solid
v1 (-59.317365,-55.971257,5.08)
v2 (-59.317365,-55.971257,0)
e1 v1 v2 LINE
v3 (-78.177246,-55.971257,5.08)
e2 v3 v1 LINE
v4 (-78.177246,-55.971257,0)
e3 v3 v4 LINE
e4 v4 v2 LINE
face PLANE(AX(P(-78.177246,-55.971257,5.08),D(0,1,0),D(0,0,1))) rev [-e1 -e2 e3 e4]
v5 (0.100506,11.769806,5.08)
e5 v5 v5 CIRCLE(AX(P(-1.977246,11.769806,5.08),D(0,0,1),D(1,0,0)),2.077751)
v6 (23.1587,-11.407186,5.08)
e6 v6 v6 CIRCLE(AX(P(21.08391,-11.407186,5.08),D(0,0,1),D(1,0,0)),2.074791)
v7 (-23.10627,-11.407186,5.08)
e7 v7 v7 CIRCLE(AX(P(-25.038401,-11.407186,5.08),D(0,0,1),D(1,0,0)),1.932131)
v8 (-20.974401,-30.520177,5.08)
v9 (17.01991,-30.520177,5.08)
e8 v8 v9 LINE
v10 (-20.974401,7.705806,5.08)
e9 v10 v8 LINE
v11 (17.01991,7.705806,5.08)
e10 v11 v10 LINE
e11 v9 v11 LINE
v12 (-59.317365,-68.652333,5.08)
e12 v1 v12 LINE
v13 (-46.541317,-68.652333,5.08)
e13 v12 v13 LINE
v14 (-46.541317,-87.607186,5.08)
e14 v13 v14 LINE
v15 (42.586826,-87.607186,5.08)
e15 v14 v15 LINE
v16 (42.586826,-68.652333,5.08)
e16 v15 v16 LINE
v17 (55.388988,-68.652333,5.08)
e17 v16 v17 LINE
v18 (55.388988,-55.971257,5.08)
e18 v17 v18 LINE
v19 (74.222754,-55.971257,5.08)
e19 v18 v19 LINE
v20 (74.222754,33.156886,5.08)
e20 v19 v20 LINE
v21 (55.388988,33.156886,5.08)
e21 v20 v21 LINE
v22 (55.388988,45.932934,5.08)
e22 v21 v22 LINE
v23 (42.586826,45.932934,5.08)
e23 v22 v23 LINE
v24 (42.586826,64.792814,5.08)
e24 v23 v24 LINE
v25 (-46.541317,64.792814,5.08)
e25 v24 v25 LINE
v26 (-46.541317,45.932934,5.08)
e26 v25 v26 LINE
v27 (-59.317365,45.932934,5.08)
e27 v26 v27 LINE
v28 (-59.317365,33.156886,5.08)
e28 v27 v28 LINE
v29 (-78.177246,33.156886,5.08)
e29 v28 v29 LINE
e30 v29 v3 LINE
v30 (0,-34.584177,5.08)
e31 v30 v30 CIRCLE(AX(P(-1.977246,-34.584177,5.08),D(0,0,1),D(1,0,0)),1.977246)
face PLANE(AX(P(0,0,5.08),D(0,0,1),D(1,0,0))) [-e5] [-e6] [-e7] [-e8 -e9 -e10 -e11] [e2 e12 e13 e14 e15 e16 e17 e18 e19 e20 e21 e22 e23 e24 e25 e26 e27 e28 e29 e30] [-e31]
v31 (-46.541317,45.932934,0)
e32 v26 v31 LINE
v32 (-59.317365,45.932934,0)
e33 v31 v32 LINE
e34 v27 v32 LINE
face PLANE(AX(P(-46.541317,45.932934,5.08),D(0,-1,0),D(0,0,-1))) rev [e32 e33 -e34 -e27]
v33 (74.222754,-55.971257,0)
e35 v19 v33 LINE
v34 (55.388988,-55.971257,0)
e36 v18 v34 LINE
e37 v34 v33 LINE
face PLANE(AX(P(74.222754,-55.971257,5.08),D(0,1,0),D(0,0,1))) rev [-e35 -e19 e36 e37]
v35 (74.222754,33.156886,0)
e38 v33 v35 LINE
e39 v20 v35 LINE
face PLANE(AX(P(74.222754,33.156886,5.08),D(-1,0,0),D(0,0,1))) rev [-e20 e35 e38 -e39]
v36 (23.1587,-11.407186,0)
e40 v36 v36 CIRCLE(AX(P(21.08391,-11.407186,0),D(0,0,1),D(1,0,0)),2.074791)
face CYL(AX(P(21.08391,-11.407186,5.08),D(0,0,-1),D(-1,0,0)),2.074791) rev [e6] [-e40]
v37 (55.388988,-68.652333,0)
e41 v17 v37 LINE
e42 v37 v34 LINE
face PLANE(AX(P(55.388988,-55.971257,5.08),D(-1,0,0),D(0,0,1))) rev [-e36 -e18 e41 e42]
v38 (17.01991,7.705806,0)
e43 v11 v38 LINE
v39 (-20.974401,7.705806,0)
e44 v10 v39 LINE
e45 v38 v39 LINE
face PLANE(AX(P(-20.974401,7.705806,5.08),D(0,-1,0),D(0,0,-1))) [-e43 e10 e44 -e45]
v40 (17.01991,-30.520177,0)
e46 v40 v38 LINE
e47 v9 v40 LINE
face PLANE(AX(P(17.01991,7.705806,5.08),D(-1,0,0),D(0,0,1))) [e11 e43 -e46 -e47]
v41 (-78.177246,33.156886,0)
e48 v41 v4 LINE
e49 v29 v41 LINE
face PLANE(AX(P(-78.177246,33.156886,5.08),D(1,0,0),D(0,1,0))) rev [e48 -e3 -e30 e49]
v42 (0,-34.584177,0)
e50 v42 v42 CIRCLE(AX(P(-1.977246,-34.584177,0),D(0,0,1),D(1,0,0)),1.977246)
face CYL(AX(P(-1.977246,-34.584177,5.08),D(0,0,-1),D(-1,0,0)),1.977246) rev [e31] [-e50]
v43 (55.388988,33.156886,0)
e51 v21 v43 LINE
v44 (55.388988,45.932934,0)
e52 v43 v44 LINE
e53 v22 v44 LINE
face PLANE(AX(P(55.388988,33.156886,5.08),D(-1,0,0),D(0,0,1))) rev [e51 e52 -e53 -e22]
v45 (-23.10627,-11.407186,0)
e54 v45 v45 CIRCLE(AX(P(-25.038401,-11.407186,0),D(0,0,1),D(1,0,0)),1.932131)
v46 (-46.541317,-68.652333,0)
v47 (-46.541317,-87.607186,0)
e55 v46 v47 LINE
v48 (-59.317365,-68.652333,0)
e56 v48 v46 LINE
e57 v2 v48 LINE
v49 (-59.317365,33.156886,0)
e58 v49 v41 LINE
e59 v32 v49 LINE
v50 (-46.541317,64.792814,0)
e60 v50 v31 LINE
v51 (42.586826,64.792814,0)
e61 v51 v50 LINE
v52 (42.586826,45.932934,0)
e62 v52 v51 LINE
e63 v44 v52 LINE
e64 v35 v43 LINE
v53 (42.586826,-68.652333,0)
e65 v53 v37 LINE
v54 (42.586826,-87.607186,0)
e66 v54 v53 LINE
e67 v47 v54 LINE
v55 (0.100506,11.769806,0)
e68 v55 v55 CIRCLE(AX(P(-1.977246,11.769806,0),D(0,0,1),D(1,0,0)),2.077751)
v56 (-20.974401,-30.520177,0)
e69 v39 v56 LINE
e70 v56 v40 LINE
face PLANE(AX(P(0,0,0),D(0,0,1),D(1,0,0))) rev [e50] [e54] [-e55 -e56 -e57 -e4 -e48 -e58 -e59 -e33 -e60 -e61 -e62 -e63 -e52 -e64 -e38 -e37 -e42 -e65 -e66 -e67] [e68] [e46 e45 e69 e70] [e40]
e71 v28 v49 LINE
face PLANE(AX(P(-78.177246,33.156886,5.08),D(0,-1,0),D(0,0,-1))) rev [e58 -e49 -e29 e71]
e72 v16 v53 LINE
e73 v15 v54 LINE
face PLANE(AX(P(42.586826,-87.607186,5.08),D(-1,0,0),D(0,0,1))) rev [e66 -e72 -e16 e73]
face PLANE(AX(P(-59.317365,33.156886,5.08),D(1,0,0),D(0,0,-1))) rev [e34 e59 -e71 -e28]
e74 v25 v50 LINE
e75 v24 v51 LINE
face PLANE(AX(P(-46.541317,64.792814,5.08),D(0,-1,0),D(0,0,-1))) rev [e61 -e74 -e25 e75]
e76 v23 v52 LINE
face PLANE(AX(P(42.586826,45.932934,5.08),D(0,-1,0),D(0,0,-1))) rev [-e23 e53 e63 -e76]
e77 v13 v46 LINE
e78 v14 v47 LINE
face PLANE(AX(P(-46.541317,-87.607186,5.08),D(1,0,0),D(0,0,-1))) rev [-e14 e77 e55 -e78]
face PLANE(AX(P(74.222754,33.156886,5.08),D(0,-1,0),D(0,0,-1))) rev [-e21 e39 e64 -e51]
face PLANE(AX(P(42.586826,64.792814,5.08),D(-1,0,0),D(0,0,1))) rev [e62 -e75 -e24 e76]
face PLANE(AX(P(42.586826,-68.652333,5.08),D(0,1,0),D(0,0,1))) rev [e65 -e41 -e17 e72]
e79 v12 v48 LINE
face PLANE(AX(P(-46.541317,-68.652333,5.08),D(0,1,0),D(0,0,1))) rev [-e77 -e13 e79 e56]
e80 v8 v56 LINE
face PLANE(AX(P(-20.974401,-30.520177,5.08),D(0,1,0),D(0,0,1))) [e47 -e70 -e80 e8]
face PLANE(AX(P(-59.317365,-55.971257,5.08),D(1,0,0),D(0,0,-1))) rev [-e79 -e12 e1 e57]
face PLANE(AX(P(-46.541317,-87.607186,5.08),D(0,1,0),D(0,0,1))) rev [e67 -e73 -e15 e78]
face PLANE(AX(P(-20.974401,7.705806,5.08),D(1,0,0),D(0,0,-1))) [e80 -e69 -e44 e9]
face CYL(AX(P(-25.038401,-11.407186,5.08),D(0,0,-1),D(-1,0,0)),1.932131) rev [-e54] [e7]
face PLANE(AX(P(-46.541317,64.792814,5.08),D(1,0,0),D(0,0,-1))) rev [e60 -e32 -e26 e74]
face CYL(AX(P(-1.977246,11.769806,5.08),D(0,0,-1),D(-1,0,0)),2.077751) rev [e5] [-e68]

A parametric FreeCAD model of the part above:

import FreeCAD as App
import Part
import Sketcher
from FreeCAD import Vector
Q = App.Units.Quantity


def add_polygon(sketch, points):
    """Adds a closed chain of lines whose ends are joined by coincident constraints."""
    first, n = sketch.GeometryCount, len(points)
    for a, b in zip(points, points[1:] + points[:1]):
        sketch.addGeometry(Part.LineSegment(App.Vector(*a, 0), App.Vector(*b, 0)), False)
    for i in range(n):
        sketch.addConstraint(Sketcher.Constraint("Coincident", first + i, 2, first + (i + 1) % n, 1))

doc = App.newDocument("Part")
body = doc.addObject("PartDesign::Body", "Body")

sketch1 = doc.addObject("Sketcher::SketchObject", "Sketch")
body.addObject(sketch1)
sketch1.AttachmentSupport = (doc.XY_Plane, [""])
sketch1.MapMode = "FlatFace"
add_polygon(sketch1, [(42.586826, 64.792814), (-46.541317, 64.792814), (-46.541317, 45.932934), (-59.317365, 45.932934), (-59.317365, 33.156886), (-78.177246, 33.156886), (-78.177246, -55.971257), (-59.317365, -55.971257), (-59.317365, -68.652333), (-46.541317, -68.652333), (-46.541317, -87.607186), (42.586826, -87.607186), (42.586826, -68.652333), (55.388988, -68.652333), (55.388988, -55.971257), (74.222754, -55.971257), (74.222754, 33.156886), (55.388988, 33.156886), (55.388988, 45.932934), (42.586826, 45.932934)])
sketch1.addGeometry(Part.Circle(Vector(21.08391, -11.407186, 0), Vector(0, 0, 1), 2.074791), False)
sketch1.addGeometry(Part.Circle(Vector(-1.977246, -34.584177, 0), Vector(0, 0, 1), 1.977246), False)
add_polygon(sketch1, [(-20.974401, -30.520177), (-20.974401, 7.705806), (17.01991, 7.705806), (17.01991, -30.520177)])
sketch1.addGeometry(Part.Circle(Vector(-25.038401, -11.407186, 0), Vector(0, 0, 1), 1.932131), False)
sketch1.addGeometry(Part.Circle(Vector(-1.977246, 11.769806, 0), Vector(0, 0, 1), 2.077751), False)
sketch1.addConstraint(Sketcher.Constraint("Horizontal", 0))
sketch1.addConstraint(Sketcher.Constraint("Vertical", 1))
sketch1.addConstraint(Sketcher.Constraint("Horizontal", 2))
sketch1.addConstraint(Sketcher.Constraint("Vertical", 3))
sketch1.addConstraint(Sketcher.Constraint("Horizontal", 4))
sketch1.addConstraint(Sketcher.Constraint("Vertical", 5))
sketch1.addConstraint(Sketcher.Constraint("Horizontal", 6))
sketch1.addConstraint(Sketcher.Constraint("Vertical", 7))
sketch1.addConstraint(Sketcher.Constraint("Horizontal", 8))
sketch1.addConstraint(Sketcher.Constraint("Vertical", 9))
sketch1.addConstraint(Sketcher.Constraint("Horizontal", 10))
sketch1.addConstraint(Sketcher.Constraint("Vertical", 11))
sketch1.addConstraint(Sketcher.Constraint("Horizontal", 12))
sketch1.addConstraint(Sketcher.Constraint("Vertical", 13))
sketch1.addConstraint(Sketcher.Constraint("Horizontal", 14))
sketch1.addConstraint(Sketcher.Constraint("Vertical", 15))
sketch1.addConstraint(Sketcher.Constraint("Horizontal", 16))
sketch1.addConstraint(Sketcher.Constraint("Vertical", 17))
sketch1.addConstraint(Sketcher.Constraint("Horizontal", 18))
sketch1.addConstraint(Sketcher.Constraint("Vertical", 19))
sketch1.addConstraint(Sketcher.Constraint("Vertical", 22))
sketch1.addConstraint(Sketcher.Constraint("Horizontal", 23))
sketch1.addConstraint(Sketcher.Constraint("Vertical", 24))
sketch1.addConstraint(Sketcher.Constraint("Horizontal", 25))
sketch1.addConstraint(Sketcher.Constraint("Horizontal", 20, 3, 26, 3))
sketch1.addConstraint(Sketcher.Constraint("Horizontal", 8, 2, 11, 2))
sketch1.addConstraint(Sketcher.Constraint("Horizontal", 6, 2, 13, 2))
sketch1.addConstraint(Sketcher.Constraint("Horizontal", 4, 2, 15, 2))
sketch1.addConstraint(Sketcher.Constraint("Horizontal", 2, 2, 17, 2))
sketch1.addConstraint(Sketcher.Constraint("Vertical", 21, 3, 27, 3))
sketch1.addConstraint(Sketcher.Constraint("Vertical", 3, 2, 6, 2))
sketch1.addConstraint(Sketcher.Constraint("Vertical", 1, 2, 8, 2))
sketch1.addConstraint(Sketcher.Constraint("Vertical", 13, 2, 16, 2))
sketch1.addConstraint(Sketcher.Constraint("Vertical", 11, 2, 18, 2))
sketch1.addConstraint(Sketcher.Constraint("Equal", 6, 1))
sketch1.addConstraint(Sketcher.Constraint("Equal", 8, 3))
sketch1.addConstraint(Sketcher.Constraint("Equal", 10, 5))
sketch1.addConstraint(Sketcher.Constraint("DistanceY", 26, 3, 0, 2, Q("3 in")))
sketch1.addConstraint(Sketcher.Constraint("DistanceX", 5, 2, 21, 3, Q("3 in")))
sketch1.addConstraint(Sketcher.Constraint("DistanceY", 10, 2, 20, 3, Q("3 in")))
sketch1.addConstraint(Sketcher.Constraint("DistanceX", 27, 3, 15, 2, Q("3 in")))
sketch1.addConstraint(Sketcher.Constraint("DistanceY", 22, 2, 27, 3, Q("0.16 in")))
sketch1.addConstraint(Sketcher.Constraint("DistanceX", 26, 3, 22, 2, Q("0.16 in")))
sketch1.addConstraint(Sketcher.Constraint("DistanceX", 23, 2, 20, 3, Q("0.16 in")))
sketch1.addConstraint(Sketcher.Constraint("DistanceY", 21, 3, 24, 2, Q("0.16 in")))
sketch1.addConstraint(Sketcher.Constraint("Diameter", 20, 4.149581))
sketch1.addConstraint(Sketcher.Constraint("Diameter", 21, 3.954491))
sketch1.addConstraint(Sketcher.Constraint("Diameter", 26, 3.864261))
sketch1.addConstraint(Sketcher.Constraint("Diameter", 27, 4.155503))
sketch1.addConstraint(Sketcher.Constraint("DistanceX", 4, 2, 4, 1, 18.85988))
sketch1.addConstraint(Sketcher.Constraint("DistanceX", 12, 1, 12, 2, 12.802162))
sketch1.addConstraint(Sketcher.Constraint("DistanceX", 23, 1, 23, 2, 37.994311))
sketch1.addConstraint(Sketcher.Constraint("DistanceX", 26, 3, -1, 1, 25.038401))
sketch1.addConstraint(Sketcher.Constraint("DistanceX", 0, 2, 0, 1, 89.128144))
sketch1.addConstraint(Sketcher.Constraint("DistanceX", 2, 2, 2, 1, 12.776048))
sketch1.addConstraint(Sketcher.Constraint("DistanceY", 7, 2, 7, 1, 12.681076))
sketch1.addConstraint(Sketcher.Constraint("DistanceY", 22, 1, 22, 2, 38.225983))
sketch1.addConstraint(Sketcher.Constraint("DistanceY", 21, 3, 20, 3, 23.176992))
sketch1.addConstraint(Sketcher.Constraint("DistanceX", 20, 3, 12, 2, 34.305078))
sketch1.addConstraint(Sketcher.Constraint("DistanceY", 20, 3, -1, 1, 11.407186))
pad1 = doc.addObject("PartDesign::Pad", "Pad")
body.addObject(pad1)
pad1.Profile = sketch1
pad1.Length = Q("0.2 in")

doc.recompute()
